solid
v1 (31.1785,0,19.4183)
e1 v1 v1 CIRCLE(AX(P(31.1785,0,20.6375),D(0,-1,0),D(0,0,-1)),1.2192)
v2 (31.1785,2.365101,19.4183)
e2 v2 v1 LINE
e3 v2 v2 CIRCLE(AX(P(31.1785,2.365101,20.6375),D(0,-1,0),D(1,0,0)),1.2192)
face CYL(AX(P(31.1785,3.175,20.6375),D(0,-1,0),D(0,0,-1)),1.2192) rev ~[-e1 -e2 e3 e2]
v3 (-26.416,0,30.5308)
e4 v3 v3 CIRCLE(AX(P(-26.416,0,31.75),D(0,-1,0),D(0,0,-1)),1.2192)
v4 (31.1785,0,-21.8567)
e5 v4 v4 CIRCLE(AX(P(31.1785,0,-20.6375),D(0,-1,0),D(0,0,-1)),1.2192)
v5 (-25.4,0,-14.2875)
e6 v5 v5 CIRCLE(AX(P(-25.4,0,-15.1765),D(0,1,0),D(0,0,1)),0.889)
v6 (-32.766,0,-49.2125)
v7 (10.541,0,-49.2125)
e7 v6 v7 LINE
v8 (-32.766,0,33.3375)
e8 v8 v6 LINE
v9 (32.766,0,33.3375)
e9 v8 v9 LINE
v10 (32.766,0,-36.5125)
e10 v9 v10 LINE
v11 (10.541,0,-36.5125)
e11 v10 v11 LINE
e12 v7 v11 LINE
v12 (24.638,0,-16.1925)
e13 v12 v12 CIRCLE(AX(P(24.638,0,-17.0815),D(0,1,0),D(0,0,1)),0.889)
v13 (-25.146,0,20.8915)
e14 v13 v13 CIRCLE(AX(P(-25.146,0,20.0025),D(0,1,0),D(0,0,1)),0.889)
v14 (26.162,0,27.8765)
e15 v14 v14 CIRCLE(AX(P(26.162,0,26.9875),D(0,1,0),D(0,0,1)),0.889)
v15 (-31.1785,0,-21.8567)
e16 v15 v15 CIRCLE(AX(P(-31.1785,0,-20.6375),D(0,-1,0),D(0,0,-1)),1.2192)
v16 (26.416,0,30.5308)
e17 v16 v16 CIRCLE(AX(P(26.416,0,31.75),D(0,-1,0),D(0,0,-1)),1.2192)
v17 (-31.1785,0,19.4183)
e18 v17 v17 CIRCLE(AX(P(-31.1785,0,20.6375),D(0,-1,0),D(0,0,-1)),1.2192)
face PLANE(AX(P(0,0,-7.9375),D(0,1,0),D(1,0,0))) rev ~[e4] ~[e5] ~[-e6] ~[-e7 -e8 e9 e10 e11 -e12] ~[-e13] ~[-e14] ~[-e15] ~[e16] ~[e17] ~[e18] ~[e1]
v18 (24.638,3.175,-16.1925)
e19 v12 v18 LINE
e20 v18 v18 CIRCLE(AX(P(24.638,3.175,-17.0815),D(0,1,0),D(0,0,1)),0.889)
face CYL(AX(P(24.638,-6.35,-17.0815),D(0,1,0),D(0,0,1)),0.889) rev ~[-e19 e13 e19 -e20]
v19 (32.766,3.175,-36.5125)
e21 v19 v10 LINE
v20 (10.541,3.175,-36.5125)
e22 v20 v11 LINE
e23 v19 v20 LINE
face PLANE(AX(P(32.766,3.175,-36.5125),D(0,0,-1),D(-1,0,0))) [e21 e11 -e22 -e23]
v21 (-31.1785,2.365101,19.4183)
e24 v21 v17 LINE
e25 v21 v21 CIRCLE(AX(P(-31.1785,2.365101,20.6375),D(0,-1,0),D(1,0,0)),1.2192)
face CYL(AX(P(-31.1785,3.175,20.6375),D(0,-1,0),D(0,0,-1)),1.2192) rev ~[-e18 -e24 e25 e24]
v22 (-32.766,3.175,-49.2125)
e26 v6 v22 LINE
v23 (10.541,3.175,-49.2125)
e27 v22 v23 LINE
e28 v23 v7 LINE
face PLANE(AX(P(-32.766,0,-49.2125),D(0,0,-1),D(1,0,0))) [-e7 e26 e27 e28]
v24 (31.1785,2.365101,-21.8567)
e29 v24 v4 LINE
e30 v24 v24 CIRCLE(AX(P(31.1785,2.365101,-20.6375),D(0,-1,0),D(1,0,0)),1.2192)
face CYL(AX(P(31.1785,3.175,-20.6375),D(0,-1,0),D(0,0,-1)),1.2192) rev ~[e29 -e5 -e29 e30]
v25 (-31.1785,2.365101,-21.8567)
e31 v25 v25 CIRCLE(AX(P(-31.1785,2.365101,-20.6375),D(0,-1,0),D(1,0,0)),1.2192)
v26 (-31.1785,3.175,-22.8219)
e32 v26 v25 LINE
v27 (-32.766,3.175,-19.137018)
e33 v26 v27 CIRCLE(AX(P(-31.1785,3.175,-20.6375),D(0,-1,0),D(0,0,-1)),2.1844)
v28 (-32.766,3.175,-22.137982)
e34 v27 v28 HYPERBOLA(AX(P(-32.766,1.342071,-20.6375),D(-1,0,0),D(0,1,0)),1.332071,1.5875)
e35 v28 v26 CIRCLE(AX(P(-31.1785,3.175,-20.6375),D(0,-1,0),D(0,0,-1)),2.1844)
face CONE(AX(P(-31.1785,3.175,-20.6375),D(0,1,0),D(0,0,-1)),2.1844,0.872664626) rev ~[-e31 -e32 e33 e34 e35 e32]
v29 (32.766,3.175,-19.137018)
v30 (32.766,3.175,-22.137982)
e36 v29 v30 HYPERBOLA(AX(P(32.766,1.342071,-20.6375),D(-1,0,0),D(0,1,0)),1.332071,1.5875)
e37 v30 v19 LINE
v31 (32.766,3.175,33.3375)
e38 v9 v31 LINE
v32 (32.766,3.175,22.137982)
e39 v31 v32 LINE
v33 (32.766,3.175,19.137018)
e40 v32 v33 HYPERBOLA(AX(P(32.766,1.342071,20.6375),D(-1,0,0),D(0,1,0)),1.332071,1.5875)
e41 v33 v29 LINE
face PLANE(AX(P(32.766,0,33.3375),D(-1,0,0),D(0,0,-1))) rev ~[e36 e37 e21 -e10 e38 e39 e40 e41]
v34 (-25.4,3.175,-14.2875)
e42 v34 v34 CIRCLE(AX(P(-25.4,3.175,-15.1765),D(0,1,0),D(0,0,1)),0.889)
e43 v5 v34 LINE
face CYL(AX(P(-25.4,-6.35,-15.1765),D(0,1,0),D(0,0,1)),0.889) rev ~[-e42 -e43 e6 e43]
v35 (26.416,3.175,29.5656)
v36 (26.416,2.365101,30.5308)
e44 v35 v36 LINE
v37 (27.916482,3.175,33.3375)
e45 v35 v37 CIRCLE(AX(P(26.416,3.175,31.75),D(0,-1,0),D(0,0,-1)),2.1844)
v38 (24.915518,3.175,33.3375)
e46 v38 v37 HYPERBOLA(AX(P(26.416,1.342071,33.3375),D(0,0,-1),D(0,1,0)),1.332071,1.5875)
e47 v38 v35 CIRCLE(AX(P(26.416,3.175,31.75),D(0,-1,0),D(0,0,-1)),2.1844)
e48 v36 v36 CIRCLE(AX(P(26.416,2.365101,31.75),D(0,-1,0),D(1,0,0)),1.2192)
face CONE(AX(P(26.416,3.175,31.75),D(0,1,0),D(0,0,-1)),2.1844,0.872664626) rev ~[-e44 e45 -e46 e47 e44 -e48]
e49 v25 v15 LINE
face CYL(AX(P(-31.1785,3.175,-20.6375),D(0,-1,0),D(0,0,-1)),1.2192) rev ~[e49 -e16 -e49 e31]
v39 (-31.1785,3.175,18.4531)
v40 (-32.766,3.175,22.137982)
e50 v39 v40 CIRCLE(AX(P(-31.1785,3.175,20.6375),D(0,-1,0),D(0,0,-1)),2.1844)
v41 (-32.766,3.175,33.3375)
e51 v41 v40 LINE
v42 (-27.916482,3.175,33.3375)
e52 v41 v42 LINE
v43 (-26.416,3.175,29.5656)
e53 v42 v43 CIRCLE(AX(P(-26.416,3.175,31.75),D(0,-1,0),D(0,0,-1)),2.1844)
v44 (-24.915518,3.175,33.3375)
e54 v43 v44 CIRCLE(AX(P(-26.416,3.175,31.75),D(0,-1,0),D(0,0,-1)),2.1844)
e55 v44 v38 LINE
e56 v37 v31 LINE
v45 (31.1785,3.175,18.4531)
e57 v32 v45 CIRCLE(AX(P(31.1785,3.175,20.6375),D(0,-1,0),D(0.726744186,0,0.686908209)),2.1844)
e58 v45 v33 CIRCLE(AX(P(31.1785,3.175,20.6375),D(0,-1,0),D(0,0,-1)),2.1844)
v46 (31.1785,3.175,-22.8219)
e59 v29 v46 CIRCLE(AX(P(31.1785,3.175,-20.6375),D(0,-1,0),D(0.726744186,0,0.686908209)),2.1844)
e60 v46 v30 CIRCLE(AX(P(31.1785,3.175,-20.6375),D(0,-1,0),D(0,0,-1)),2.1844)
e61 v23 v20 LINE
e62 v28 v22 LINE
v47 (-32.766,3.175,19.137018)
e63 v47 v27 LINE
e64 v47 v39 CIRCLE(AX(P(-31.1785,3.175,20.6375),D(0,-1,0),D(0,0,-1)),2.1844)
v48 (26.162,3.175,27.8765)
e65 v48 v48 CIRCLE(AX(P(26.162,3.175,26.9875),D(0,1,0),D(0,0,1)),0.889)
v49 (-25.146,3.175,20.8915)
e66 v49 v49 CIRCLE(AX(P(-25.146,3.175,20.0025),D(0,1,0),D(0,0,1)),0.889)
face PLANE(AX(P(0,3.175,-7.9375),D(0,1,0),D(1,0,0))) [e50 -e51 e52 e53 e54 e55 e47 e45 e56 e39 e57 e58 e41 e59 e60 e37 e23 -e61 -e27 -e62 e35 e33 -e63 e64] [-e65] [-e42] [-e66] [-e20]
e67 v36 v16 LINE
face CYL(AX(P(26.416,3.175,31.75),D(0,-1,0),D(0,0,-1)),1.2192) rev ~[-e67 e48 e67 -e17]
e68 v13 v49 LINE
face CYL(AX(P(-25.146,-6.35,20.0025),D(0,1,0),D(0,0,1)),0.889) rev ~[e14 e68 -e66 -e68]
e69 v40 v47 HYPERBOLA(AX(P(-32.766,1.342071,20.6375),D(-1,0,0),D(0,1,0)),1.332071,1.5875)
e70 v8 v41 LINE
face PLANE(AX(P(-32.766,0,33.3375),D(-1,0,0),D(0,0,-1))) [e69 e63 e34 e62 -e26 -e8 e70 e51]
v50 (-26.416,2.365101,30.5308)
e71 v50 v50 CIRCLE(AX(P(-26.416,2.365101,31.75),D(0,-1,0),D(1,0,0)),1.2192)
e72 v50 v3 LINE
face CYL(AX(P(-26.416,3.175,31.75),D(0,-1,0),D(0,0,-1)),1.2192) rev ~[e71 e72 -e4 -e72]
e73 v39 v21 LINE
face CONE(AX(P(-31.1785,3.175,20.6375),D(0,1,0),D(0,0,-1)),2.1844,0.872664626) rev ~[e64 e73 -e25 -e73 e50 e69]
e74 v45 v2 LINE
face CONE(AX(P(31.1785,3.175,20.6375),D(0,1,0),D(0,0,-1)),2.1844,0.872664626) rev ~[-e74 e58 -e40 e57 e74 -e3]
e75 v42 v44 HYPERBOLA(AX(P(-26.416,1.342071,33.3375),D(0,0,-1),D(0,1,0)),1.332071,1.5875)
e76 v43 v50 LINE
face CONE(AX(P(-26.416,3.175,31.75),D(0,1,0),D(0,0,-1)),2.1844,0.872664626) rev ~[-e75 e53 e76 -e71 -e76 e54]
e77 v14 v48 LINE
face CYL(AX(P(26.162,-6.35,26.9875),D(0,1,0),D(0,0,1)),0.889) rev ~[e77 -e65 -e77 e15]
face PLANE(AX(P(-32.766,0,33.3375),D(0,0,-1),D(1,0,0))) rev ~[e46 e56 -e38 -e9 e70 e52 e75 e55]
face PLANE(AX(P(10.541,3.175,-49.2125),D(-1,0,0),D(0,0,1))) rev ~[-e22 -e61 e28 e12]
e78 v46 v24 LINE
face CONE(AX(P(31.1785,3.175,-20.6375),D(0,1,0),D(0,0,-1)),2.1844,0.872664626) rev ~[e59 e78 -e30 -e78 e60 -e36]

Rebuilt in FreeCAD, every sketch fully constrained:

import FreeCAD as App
import Part
import Sketcher
from FreeCAD import Vector
Q = App.Units.Quantity

doc = App.newDocument("Part")
body = doc.addObject("PartDesign::Body", "Body")

sketch1 = body.newObject("Sketcher::SketchObject", "Sketch")
sketch1.AttachmentSupport = (doc.getObject("XZ_Plane"), [""])
sketch1.MapMode = "FlatFace"
sketch1.addGeometry(Part.LineSegment(Vector(-33, -49, 0), Vector(-33, 33, 0)), False)
sketch1.addGeometry(Part.LineSegment(Vector(-33, 33, 0), Vector(33, 33, 0)), False)
sketch1.addGeometry(Part.LineSegment(Vector(33, 33, 0), Vector(33, -49, 0)), False)
sketch1.addGeometry(Part.LineSegment(Vector(33, -49, 0), Vector(-33, -49, 0)), False)
sketch1.addConstraint(Sketcher.Constraint("Coincident", 0, 2, 1, 1))
sketch1.addConstraint(Sketcher.Constraint("Coincident", 1, 2, 2, 1))
sketch1.addConstraint(Sketcher.Constraint("Coincident", 2, 2, 3, 1))
sketch1.addConstraint(Sketcher.Constraint("Coincident", 3, 2, 0, 1))
sketch1.addConstraint(Sketcher.Constraint("Vertical", 0))
sketch1.addConstraint(Sketcher.Constraint("Horizontal", 1))
sketch1.addConstraint(Sketcher.Constraint("Vertical", 2))
sketch1.addConstraint(Sketcher.Constraint("Horizontal", 3))
sketch1.addConstraint(Sketcher.Constraint("DistanceX", 1, 1, 1, 2, Q("2.58 in")))
sketch1.addConstraint(Sketcher.Constraint("DistanceY", 0, 1, 0, 2, Q("3.25 in")))
sketch1.addConstraint(Sketcher.Constraint("DistanceX", 0, 2, -1, 1, Q("1.29 in")))
sketch1.addConstraint(Sketcher.Constraint("DistanceY", -1, 1, 0, 2, Q("1.3125 in")))
pad1 = body.newObject("PartDesign::Pad", "Pad")
pad1.Profile = sketch1
pad1.Length = Q("0.125 in")
pad1.Reversed = True

sketch2 = body.newObject("Sketcher::SketchObject", "Sketch001")
sketch2.AttachmentSupport = (doc.getObject("XZ_Plane"), [""])
sketch2.MapMode = "FlatFace"
sketch2.AttachmentOffset = App.Placement(Vector(0, 0, -0.125 * 25.4), App.Rotation())
sketch2.addGeometry(Part.Circle(Vector(-26.4, 31.8, 0), Vector(0, 0, 1), 1.2), False)
sketch2.addGeometry(Part.Circle(Vector(26.4, 31.8, 0), Vector(0, 0, 1), 1.2), False)
sketch2.addGeometry(Part.Circle(Vector(-31.2, -20.6, 0), Vector(0, 0, 1), 1.2), False)
sketch2.addGeometry(Part.Circle(Vector(-31.2, 20.6, 0), Vector(0, 0, 1), 1.2), False)
sketch2.addGeometry(Part.Circle(Vector(31.2, -20.6, 0), Vector(0, 0, 1), 1.2), False)
sketch2.addGeometry(Part.Circle(Vector(31.2, 20.6, 0), Vector(0, 0, 1), 1.2), False)
sketch2.addConstraint(Sketcher.Constraint("Equal", 0, 1))
sketch2.addConstraint(Sketcher.Constraint("Equal", 1, 2))
sketch2.addConstraint(Sketcher.Constraint("Equal", 2, 3))
sketch2.addConstraint(Sketcher.Constraint("Equal", 3, 4))
sketch2.addConstraint(Sketcher.Constraint("Equal", 4, 5))
sketch2.addConstraint(Sketcher.Constraint("Symmetric", 3, 3, 4, 3, -1, 1))
sketch2.addConstraint(Sketcher.Constraint("Symmetric", 2, 3, 5, 3, -1, 1))
sketch2.addConstraint(Sketcher.Constraint("Symmetric", 0, 3, 1, 3, -2))
sketch2.addConstraint(Sketcher.Constraint("Symmetric", 2, 3, 4, 3, -2))
sketch2.addConstraint(Sketcher.Constraint("Diameter", 0, Q("0.096 in")))
sketch2.addConstraint(Sketcher.Constraint("DistanceX", 0, 3, -1, 1, Q("1.04 in")))
sketch2.addConstraint(Sketcher.Constraint("DistanceY", -1, 1, 0, 3, Q("1.25 in")))
sketch2.addConstraint(Sketcher.Constraint("DistanceY", 2, 3, -1, 1, Q("0.8125 in")))
sketch2.addConstraint(Sketcher.Constraint("DistanceX", 2, 3, 0, 3, Q("0.1875 in")))
doc.recompute()
hole = body.newObject("PartDesign::Hole", "Hole")
hole.Profile = sketch2
hole.ThreadType = "None"
hole.Diameter = Q("0.096 in")
hole.DepthType = "ThroughAll"
hole.HoleCutType = "Countersink"
hole.HoleCutDiameter = Q("0.172 in")
hole.HoleCutCountersinkAngle = 100
hole.Reversed = True

sketch3 = body.newObject("Sketcher::SketchObject", "Sketch002")
sketch3.AttachmentSupport = (doc.getObject("XZ_Plane"), [""])
sketch3.MapMode = "FlatFace"
sketch3.AttachmentOffset = App.Placement(Vector(0, 0, -0.125 * 25.4), App.Rotation())
sketch3.addGeometry(Part.LineSegment(Vector(33, -37, 0), Vector(33, -49, 0)), False)
sketch3.addGeometry(Part.LineSegment(Vector(33, -49, 0), Vector(11, -49, 0)), False)
sketch3.addGeometry(Part.LineSegment(Vector(11, -49, 0), Vector(11, -37, 0)), False)
sketch3.addGeometry(Part.LineSegment(Vector(11, -37, 0), Vector(33, -37, 0)), False)
sketch3.addConstraint(Sketcher.Constraint("Coincident", 0, 2, 1, 1))
sketch3.addConstraint(Sketcher.Constraint("Coincident", 1, 2, 2, 1))
sketch3.addConstraint(Sketcher.Constraint("Coincident", 2, 2, 3, 1))
sketch3.addConstraint(Sketcher.Constraint("Coincident", 3, 2, 0, 1))
sketch3.addConstraint(Sketcher.Constraint("Vertical", 0))
sketch3.addConstraint(Sketcher.Constraint("Horizontal", 1))
sketch3.addConstraint(Sketcher.Constraint("Vertical", 2))
sketch3.addConstraint(Sketcher.Constraint("Horizontal", 3))
sketch3.addConstraint(Sketcher.Constraint("DistanceY", 0, 2, 0, 1, Q("0.5 in")))
sketch3.addConstraint(Sketcher.Constraint("DistanceX", 1, 2, 1, 1, Q("0.875 in")))
sketch3.addConstraint(Sketcher.Constraint("DistanceX", -1, 1, 0, 2, Q("1.29 in")))
sketch3.addConstraint(Sketcher.Constraint("DistanceY", 0, 2, -1, 1, Q("1.9375 in")))
pocket1 = body.newObject("PartDesign::Pocket", "Pocket")
pocket1.Profile = sketch3
pocket1.Type = "ThroughAll"
pocket1.Reversed = True

sketch4 = body.newObject("Sketcher::SketchObject", "Sketch003")
sketch4.AttachmentSupport = (doc.getObject("XZ_Plane"), [""])
sketch4.MapMode = "FlatFace"
sketch4.addGeometry(Part.Circle(Vector(24.6, -17.1, 0), Vector(0, 0, 1), 0.9), False)
sketch4.addGeometry(Part.Circle(Vector(-25.4, -15.2, 0), Vector(0, 0, 1), 0.9), False)
sketch4.addGeometry(Part.Circle(Vector(-25.1, 20, 0), Vector(0, 0, 1), 0.9), False)
sketch4.addGeometry(Part.Circle(Vector(26.2, 27, 0), Vector(0, 0, 1), 0.9), False)
sketch4.addConstraint(Sketcher.Constraint("Equal", 0, 1))
sketch4.addConstraint(Sketcher.Constraint("Equal", 1, 2))
sketch4.addConstraint(Sketcher.Constraint("Equal", 2, 3))
sketch4.addConstraint(Sketcher.Constraint("Diameter", 0, Q("0.07 in")))
sketch4.addConstraint(Sketcher.Constraint("DistanceX", 1, 3, -1, 1, Q("1 in")))
sketch4.addConstraint(Sketcher.Constraint("DistanceX", -1, 1, 0, 3, Q("0.97 in")))
sketch4.addConstraint(Sketcher.Constraint("DistanceX", 2, 3, -1, 1, Q("0.99 in")))
sketch4.addConstraint(Sketcher.Constraint("DistanceX", -1, 1, 3, 3, Q("1.03 in")))
sketch4.addConstraint(Sketcher.Constraint("DistanceY", 0, 3, 2, 3, Q("1.46 in")))
sketch4.addConstraint(Sketcher.Constraint("DistanceY", 1, 3, 3, 3, Q("1.66 in")))
sketch4.addConstraint(Sketcher.Constraint("DistanceY", -1, 1, 3, 3, Q("1.0625 in")))
sketch4.addConstraint(Sketcher.Constraint("DistanceY", 0, 3, 1, 3, Q("0.075 in")))
doc.recompute()
hole2 = body.newObject("PartDesign::Hole", "Hole001")
hole2.Profile = sketch4
hole2.ThreadType = "None"
hole2.Diameter = Q("0.07 in")
hole2.DepthType = "Dimension"
hole2.Depth = Q("0.25 in")
hole2.DrillPoint = "Angled"
hole2.DrillPointAngle = 118

doc.recompute()
